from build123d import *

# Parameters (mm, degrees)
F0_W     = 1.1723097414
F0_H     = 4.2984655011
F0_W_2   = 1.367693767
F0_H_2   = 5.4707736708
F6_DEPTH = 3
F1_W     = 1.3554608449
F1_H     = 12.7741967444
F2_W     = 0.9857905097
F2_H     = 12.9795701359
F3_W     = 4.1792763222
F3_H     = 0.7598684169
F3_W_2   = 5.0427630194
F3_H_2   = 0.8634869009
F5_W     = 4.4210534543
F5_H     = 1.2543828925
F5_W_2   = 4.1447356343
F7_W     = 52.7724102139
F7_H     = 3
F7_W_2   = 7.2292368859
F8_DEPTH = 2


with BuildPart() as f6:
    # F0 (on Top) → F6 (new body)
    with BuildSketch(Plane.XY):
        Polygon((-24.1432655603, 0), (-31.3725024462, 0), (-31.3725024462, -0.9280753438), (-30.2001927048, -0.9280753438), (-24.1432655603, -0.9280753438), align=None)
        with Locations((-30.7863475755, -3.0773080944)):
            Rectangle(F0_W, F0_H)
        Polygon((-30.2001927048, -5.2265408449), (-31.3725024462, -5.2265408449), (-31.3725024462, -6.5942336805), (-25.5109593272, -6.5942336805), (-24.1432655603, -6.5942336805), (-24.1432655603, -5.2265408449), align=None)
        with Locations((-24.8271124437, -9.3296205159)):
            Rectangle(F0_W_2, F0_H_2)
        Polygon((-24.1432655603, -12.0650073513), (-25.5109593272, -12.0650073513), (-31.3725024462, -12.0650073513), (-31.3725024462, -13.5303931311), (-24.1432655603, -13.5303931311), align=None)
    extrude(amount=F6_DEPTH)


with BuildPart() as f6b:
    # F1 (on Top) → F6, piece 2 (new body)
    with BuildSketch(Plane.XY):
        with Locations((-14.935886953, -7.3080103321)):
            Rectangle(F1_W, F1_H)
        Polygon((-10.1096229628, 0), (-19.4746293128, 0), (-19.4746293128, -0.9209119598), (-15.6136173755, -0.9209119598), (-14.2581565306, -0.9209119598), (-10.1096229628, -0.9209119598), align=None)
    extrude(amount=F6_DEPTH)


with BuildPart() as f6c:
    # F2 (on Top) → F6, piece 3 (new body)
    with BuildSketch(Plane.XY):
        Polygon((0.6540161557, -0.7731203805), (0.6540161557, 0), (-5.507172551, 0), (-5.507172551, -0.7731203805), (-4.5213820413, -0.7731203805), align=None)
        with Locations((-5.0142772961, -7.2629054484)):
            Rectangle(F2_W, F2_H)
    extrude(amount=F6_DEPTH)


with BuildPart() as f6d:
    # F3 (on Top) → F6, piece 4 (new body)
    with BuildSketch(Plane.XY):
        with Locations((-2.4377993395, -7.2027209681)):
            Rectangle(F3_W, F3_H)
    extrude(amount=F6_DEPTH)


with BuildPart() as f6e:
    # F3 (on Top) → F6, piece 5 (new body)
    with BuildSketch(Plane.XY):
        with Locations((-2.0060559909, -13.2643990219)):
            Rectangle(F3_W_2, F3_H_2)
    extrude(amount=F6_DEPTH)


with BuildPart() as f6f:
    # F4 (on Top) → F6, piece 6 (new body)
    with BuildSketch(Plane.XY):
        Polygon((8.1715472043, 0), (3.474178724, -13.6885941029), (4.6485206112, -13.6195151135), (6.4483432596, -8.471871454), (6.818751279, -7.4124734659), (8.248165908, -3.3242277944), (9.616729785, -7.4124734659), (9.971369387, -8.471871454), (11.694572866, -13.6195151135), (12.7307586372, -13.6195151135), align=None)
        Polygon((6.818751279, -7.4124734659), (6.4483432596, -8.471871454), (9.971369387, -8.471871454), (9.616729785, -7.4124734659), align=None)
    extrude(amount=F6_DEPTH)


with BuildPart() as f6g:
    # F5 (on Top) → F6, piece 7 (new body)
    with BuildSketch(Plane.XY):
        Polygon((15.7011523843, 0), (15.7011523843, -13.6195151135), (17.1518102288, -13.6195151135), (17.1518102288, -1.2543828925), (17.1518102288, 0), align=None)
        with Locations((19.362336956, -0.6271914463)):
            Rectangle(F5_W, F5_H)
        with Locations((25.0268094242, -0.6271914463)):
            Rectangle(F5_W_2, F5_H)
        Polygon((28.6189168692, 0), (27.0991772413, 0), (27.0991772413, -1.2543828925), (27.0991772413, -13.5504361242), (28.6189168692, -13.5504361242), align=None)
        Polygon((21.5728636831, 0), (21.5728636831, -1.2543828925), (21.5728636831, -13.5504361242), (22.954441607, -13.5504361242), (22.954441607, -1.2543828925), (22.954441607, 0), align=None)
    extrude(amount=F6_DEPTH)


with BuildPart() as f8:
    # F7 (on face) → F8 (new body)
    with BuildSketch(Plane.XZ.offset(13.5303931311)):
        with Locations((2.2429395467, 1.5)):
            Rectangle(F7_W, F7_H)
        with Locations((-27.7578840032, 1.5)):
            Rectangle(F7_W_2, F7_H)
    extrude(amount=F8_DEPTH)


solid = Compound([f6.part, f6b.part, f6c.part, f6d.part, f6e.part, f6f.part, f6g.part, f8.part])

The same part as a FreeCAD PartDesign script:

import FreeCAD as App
import Part
import Sketcher
from FreeCAD import Vector
Q = App.Units.Quantity

doc = App.newDocument("Part")
body = doc.addObject("PartDesign::Body", "Body")

sketch1 = doc.addObject("Sketcher::SketchObject", "Sketch")
body.addObject(sketch1)
sketch1.AttachmentSupport = (doc.XY_Plane, [""])
sketch1.MapMode = "FlatFace"
sketch1.addGeometry(Part.LineSegment(Vector(-24.1, 0, 0), Vector(-31.4, 0, 0)), False)
sketch1.addGeometry(Part.LineSegment(Vector(-31.4, 0, 0), Vector(-31.4, -6.6, 0)), False)
sketch1.addGeometry(Part.LineSegment(Vector(-31.4, -6.6, 0), Vector(-25.5, -6.6, 0)), False)
sketch1.addGeometry(Part.LineSegment(Vector(-25.5, -6.6, 0), Vector(-25.5, -12.1, 0)), False)
sketch1.addGeometry(Part.LineSegment(Vector(-25.5, -12.1, 0), Vector(-31.4, -12.1, 0)), False)
sketch1.addGeometry(Part.LineSegment(Vector(-31.4, -12.1, 0), Vector(-31.4, -13.5, 0)), False)
sketch1.addGeometry(Part.LineSegment(Vector(-31.4, -13.5, 0), Vector(-24.1, -13.5, 0)), False)
sketch1.addGeometry(Part.LineSegment(Vector(-24.1, -13.5, 0), Vector(-24.1, -12.1, 0)), False)
sketch1.addGeometry(Part.LineSegment(Vector(-24.1, -12.1, 0), Vector(-24.1, -6.6, 0)), False)
sketch1.addGeometry(Part.LineSegment(Vector(-24.1, -6.6, 0), Vector(-24.1, -5.2, 0)), False)
sketch1.addGeometry(Part.LineSegment(Vector(-24.1, -5.2, 0), Vector(-30.2, -5.2, 0)), False)
sketch1.addGeometry(Part.LineSegment(Vector(-30.2, -5.2, 0), Vector(-30.2, -0.9, 0)), False)
sketch1.addGeometry(Part.LineSegment(Vector(-30.2, -0.9, 0), Vector(-24.1, -0.9, 0)), False)
sketch1.addGeometry(Part.LineSegment(Vector(-24.1, -0.9, 0), Vector(-24.1, 0, 0)), False)
sketch1.addConstraint(Sketcher.Constraint("Coincident", 0, 2, 1, 1))
sketch1.addConstraint(Sketcher.Constraint("Coincident", 1, 2, 2, 1))
sketch1.addConstraint(Sketcher.Constraint("Coincident", 2, 2, 3, 1))
sketch1.addConstraint(Sketcher.Constraint("Coincident", 3, 2, 4, 1))
sketch1.addConstraint(Sketcher.Constraint("Coincident", 4, 2, 5, 1))
sketch1.addConstraint(Sketcher.Constraint("Coincident", 5, 2, 6, 1))
sketch1.addConstraint(Sketcher.Constraint("Coincident", 6, 2, 7, 1))
sketch1.addConstraint(Sketcher.Constraint("Coincident", 7, 2, 8, 1))
sketch1.addConstraint(Sketcher.Constraint("Coincident", 8, 2, 9, 1))
sketch1.addConstraint(Sketcher.Constraint("Coincident", 9, 2, 10, 1))
sketch1.addConstraint(Sketcher.Constraint("Coincident", 10, 2, 11, 1))
sketch1.addConstraint(Sketcher.Constraint("Coincident", 11, 2, 12, 1))
sketch1.addConstraint(Sketcher.Constraint("Coincident", 12, 2, 13, 1))
sketch1.addConstraint(Sketcher.Constraint("Coincident", 13, 2, 0, 1))
sketch1.addConstraint(Sketcher.Constraint("Horizontal", 0))
sketch1.addConstraint(Sketcher.Constraint("Vertical", 1))
sketch1.addConstraint(Sketcher.Constraint("Horizontal", 2))
sketch1.addConstraint(Sketcher.Constraint("Vertical", 3))
sketch1.addConstraint(Sketcher.Constraint("Horizontal", 4))
sketch1.addConstraint(Sketcher.Constraint("Vertical", 5))
sketch1.addConstraint(Sketcher.Constraint("Horizontal", 6))
sketch1.addConstraint(Sketcher.Constraint("Vertical", 7))
sketch1.addConstraint(Sketcher.Constraint("Vertical", 8))
sketch1.addConstraint(Sketcher.Constraint("Vertical", 9))
sketch1.addConstraint(Sketcher.Constraint("Horizontal", 10))
sketch1.addConstraint(Sketcher.Constraint("Vertical", 11))
sketch1.addConstraint(Sketcher.Constraint("Horizontal", 12))
sketch1.addConstraint(Sketcher.Constraint("Vertical", 13))
sketch1.addConstraint(Sketcher.Constraint("PointOnObject", 0, 2, -1))
sketch1.addConstraint(Sketcher.Constraint("Horizontal", 4, 2, 7, 2))
sketch1.addConstraint(Sketcher.Constraint("Horizontal", 2, 2, 8, 2))
sketch1.addConstraint(Sketcher.Constraint("Vertical", 1, 2, 4, 2))
sketch1.addConstraint(Sketcher.Constraint("Vertical", 9, 2, 12, 2))
sketch1.addConstraint(Sketcher.Constraint("DistanceX", 0, 2, 0, 1, Q("7.229237 mm")))
sketch1.addConstraint(Sketcher.Constraint("DistanceX", 2, 1, 2, 2, Q("5.861543 mm")))
sketch1.addConstraint(Sketcher.Constraint("DistanceX", 10, 2, 10, 1, Q("6.056927 mm")))
sketch1.addConstraint(Sketcher.Constraint("DistanceY", 1, 2, 1, 1, Q("6.594234 mm")))
sketch1.addConstraint(Sketcher.Constraint("DistanceY", 3, 2, 3, 1, Q("5.470774 mm")))
sketch1.addConstraint(Sketcher.Constraint("DistanceY", 5, 2, 5, 1, Q("1.465386 mm")))
sketch1.addConstraint(Sketcher.Constraint("DistanceY", 9, 1, 9, 2, Q("1.367693 mm")))
sketch1.addConstraint(Sketcher.Constraint("DistanceY", 11, 1, 11, 2, Q("4.298466 mm")))
sketch1.addConstraint(Sketcher.Constraint("DistanceX", 2, 2, -1, 1, Q("25.510959 mm")))
pad1 = doc.addObject("PartDesign::Pad", "Pad")
body.addObject(pad1)
pad1.Profile = sketch1
pad1.Length = 3
body2 = doc.addObject("PartDesign::Body", "Body001")

sketch2 = doc.addObject("Sketcher::SketchObject", "Sketch001")
body2.addObject(sketch2)
sketch2.AttachmentSupport = (doc.getObject("XY_Plane001"), [""])
sketch2.MapMode = "FlatFace"
sketch2.addGeometry(Part.LineSegment(Vector(-15.6, -0.9, 0), Vector(-15.6, -13.7, 0)), False)
sketch2.addGeometry(Part.LineSegment(Vector(-15.6, -13.7, 0), Vector(-14.3, -13.7, 0)), False)
sketch2.addGeometry(Part.LineSegment(Vector(-14.3, -13.7, 0), Vector(-14.3, -0.9, 0)), False)
sketch2.addGeometry(Part.LineSegment(Vector(-14.3, -0.9, 0), Vector(-10.1, -0.9, 0)), False)
sketch2.addGeometry(Part.LineSegment(Vector(-10.1, -0.9, 0), Vector(-10.1, 0, 0)), False)
sketch2.addGeometry(Part.LineSegment(Vector(-10.1, 0, 0), Vector(-19.5, 0, 0)), False)
sketch2.addGeometry(Part.LineSegment(Vector(-19.5, 0, 0), Vector(-19.5, -0.9, 0)), False)
sketch2.addGeometry(Part.LineSegment(Vector(-19.5, -0.9, 0), Vector(-15.6, -0.9, 0)), False)
sketch2.addConstraint(Sketcher.Constraint("Coincident", 0, 2, 1, 1))
sketch2.addConstraint(Sketcher.Constraint("Coincident", 1, 2, 2, 1))
sketch2.addConstraint(Sketcher.Constraint("Coincident", 2, 2, 3, 1))
sketch2.addConstraint(Sketcher.Constraint("Coincident", 3, 2, 4, 1))
sketch2.addConstraint(Sketcher.Constraint("Coincident", 4, 2, 5, 1))
sketch2.addConstraint(Sketcher.Constraint("Coincident", 5, 2, 6, 1))
sketch2.addConstraint(Sketcher.Constraint("Coincident", 6, 2, 7, 1))
sketch2.addConstraint(Sketcher.Constraint("Coincident", 7, 2, 0, 1))
sketch2.addConstraint(Sketcher.Constraint("Vertical", 0))
sketch2.addConstraint(Sketcher.Constraint("Horizontal", 1))
sketch2.addConstraint(Sketcher.Constraint("Vertical", 2))
sketch2.addConstraint(Sketcher.Constraint("Horizontal", 3))
sketch2.addConstraint(Sketcher.Constraint("Vertical", 4))
sketch2.addConstraint(Sketcher.Constraint("Horizontal", 5))
sketch2.addConstraint(Sketcher.Constraint("Vertical", 6))
sketch2.addConstraint(Sketcher.Constraint("Horizontal", 7))
sketch2.addConstraint(Sketcher.Constraint("PointOnObject", 4, 2, -1))
sketch2.addConstraint(Sketcher.Constraint("Horizontal", 3, 2, 6, 2))
sketch2.addConstraint(Sketcher.Constraint("DistanceX", 1, 1, 1, 2, Q("1.355461 mm")))
sketch2.addConstraint(Sketcher.Constraint("DistanceX", 7, 1, 7, 2, Q("3.861012 mm")))
sketch2.addConstraint(Sketcher.Constraint("DistanceY", 4, 1, 4, 2, Q("0.920912 mm")))
sketch2.addConstraint(Sketcher.Constraint("DistanceX", 3, 1, 3, 2, Q("4.148534 mm")))
sketch2.addConstraint(Sketcher.Constraint("DistanceY", 0, 2, 0, 1, Q("12.774197 mm")))
sketch2.addConstraint(Sketcher.Constraint("DistanceX", 5, 2, -1, 1, Q("19.474629 mm")))
pad2 = doc.addObject("PartDesign::Pad", "Pad001")
body2.addObject(pad2)
pad2.Profile = sketch2
pad2.Length = 3
body3 = doc.addObject("PartDesign::Body", "Body002")

sketch3 = doc.addObject("Sketcher::SketchObject", "Sketch002")
body3.addObject(sketch3)
sketch3.AttachmentSupport = (doc.getObject("XY_Plane002"), [""])
sketch3.MapMode = "FlatFace"
sketch3.addGeometry(Part.LineSegment(Vector(0.7, -0.8, 0), Vector(0.7, 0, 0)), False)
sketch3.addGeometry(Part.LineSegment(Vector(0.7, 0, 0), Vector(-5.5, 0, 0)), False)
sketch3.addGeometry(Part.LineSegment(Vector(-5.5, 0, 0), Vector(-5.5, -0.8, 0)), False)
sketch3.addGeometry(Part.LineSegment(Vector(-5.5, -0.8, 0), Vector(-5.5, -13.8, 0)), False)
sketch3.addGeometry(Part.LineSegment(Vector(-5.5, -13.8, 0), Vector(-4.5, -13.8, 0)), False)
sketch3.addGeometry(Part.LineSegment(Vector(-4.5, -13.8, 0), Vector(-4.5, -0.8, 0)), False)
sketch3.addGeometry(Part.LineSegment(Vector(-4.5, -0.8, 0), Vector(0.7, -0.8, 0)), False)
sketch3.addConstraint(Sketcher.Constraint("Coincident", 0, 2, 1, 1))
sketch3.addConstraint(Sketcher.Constraint("Coincident", 1, 2, 2, 1))
sketch3.addConstraint(Sketcher.Constraint("Coincident", 2, 2, 3, 1))
sketch3.addConstraint(Sketcher.Constraint("Coincident", 3, 2, 4, 1))
sketch3.addConstraint(Sketcher.Constraint("Coincident", 4, 2, 5, 1))
sketch3.addConstraint(Sketcher.Constraint("Coincident", 5, 2, 6, 1))
sketch3.addConstraint(Sketcher.Constraint("Coincident", 6, 2, 0, 1))
sketch3.addConstraint(Sketcher.Constraint("Vertical", 0))
sketch3.addConstraint(Sketcher.Constraint("Horizontal", 1))
sketch3.addConstraint(Sketcher.Constraint("Vertical", 2))
sketch3.addConstraint(Sketcher.Constraint("Vertical", 3))
sketch3.addConstraint(Sketcher.Constraint("Horizontal", 4))
sketch3.addConstraint(Sketcher.Constraint("Vertical", 5))
sketch3.addConstraint(Sketcher.Constraint("Horizontal", 6))
sketch3.addConstraint(Sketcher.Constraint("PointOnObject", 0, 2, -1))
sketch3.addConstraint(Sketcher.Constraint("Horizontal", 2, 2, 5, 2))
sketch3.addConstraint(Sketcher.Constraint("DistanceX", 6, 1, 6, 2, Q("5.175398 mm")))
sketch3.addConstraint(Sketcher.Constraint("DistanceX", 1, 2, 1, 1, Q("6.161189 mm")))
sketch3.addConstraint(Sketcher.Constraint("DistanceY", 0, 1, 0, 2, Q("0.77312 mm")))
sketch3.addConstraint(Sketcher.Constraint("DistanceY", 3, 2, 3, 1, Q("12.97957 mm")))
sketch3.addConstraint(Sketcher.Constraint("DistanceX", -1, 1, 0, 2, Q("0.654016 mm")))
pad3 = doc.addObject("PartDesign::Pad", "Pad002")
body3.addObject(pad3)
pad3.Profile = sketch3
pad3.Length = 3
body4 = doc.addObject("PartDesign::Body", "Body003")

sketch4 = doc.addObject("Sketcher::SketchObject", "Sketch003")
body4.addObject(sketch4)
sketch4.AttachmentSupport = (doc.getObject("XY_Plane003"), [""])
sketch4.MapMode = "FlatFace"
sketch4.addGeometry(Part.LineSegment(Vector(-4.5, -6.8, 0), Vector(-4.5, -7.6, 0)), False)
sketch4.addGeometry(Part.LineSegment(Vector(-4.5, -7.6, 0), Vector(-0.3, -7.6, 0)), False)
sketch4.addGeometry(Part.LineSegment(Vector(-0.3, -7.6, 0), Vector(-0.3, -6.8, 0)), False)
sketch4.addGeometry(Part.LineSegment(Vector(-0.3, -6.8, 0), Vector(-4.5, -6.8, 0)), False)
sketch4.addConstraint(Sketcher.Constraint("Coincident", 0, 2, 1, 1))
sketch4.addConstraint(Sketcher.Constraint("Coincident", 1, 2, 2, 1))
sketch4.addConstraint(Sketcher.Constraint("Coincident", 2, 2, 3, 1))
sketch4.addConstraint(Sketcher.Constraint("Coincident", 3, 2, 0, 1))
sketch4.addConstraint(Sketcher.Constraint("Vertical", 0))
sketch4.addConstraint(Sketcher.Constraint("Horizontal", 1))
sketch4.addConstraint(Sketcher.Constraint("Vertical", 2))
sketch4.addConstraint(Sketcher.Constraint("Horizontal", 3))
sketch4.addConstraint(Sketcher.Constraint("DistanceY", 0, 2, 0, 1, Q("0.759868 mm")))
sketch4.addConstraint(Sketcher.Constraint("DistanceX", 1, 1, 1, 2, Q("4.179276 mm")))
sketch4.addConstraint(Sketcher.Constraint("DistanceX", 1, 2, -1, 1, Q("0.348161 mm")))
sketch4.addConstraint(Sketcher.Constraint("DistanceY", 0, 2, -1, 1, Q("7.582655 mm")))
pad4 = doc.addObject("PartDesign::Pad", "Pad003")
body4.addObject(pad4)
pad4.Profile = sketch4
pad4.Length = 3
body5 = doc.addObject("PartDesign::Body", "Body004")

sketch5 = doc.addObject("Sketcher::SketchObject", "Sketch004")
body5.addObject(sketch5)
sketch5.AttachmentSupport = (doc.getObject("XY_Plane004"), [""])
sketch5.MapMode = "FlatFace"
sketch5.addGeometry(Part.LineSegment(Vector(-4.5, -12.8, 0), Vector(-4.5, -13.7, 0)), False)
sketch5.addGeometry(Part.LineSegment(Vector(-4.5, -13.7, 0), Vector(0.5, -13.7, 0)), False)
sketch5.addGeometry(Part.LineSegment(Vector(0.5, -13.7, 0), Vector(0.5, -12.8, 0)), False)
sketch5.addGeometry(Part.LineSegment(Vector(0.5, -12.8, 0), Vector(-4.5, -12.8, 0)), False)
sketch5.addConstraint(Sketcher.Constraint("Coincident", 0, 2, 1, 1))
sketch5.addConstraint(Sketcher.Constraint("Coincident", 1, 2, 2, 1))
sketch5.addConstraint(Sketcher.Constraint("Coincident", 2, 2, 3, 1))
sketch5.addConstraint(Sketcher.Constraint("Coincident", 3, 2, 0, 1))
sketch5.addConstraint(Sketcher.Constraint("Vertical", 0))
sketch5.addConstraint(Sketcher.Constraint("Horizontal", 1))
sketch5.addConstraint(Sketcher.Constraint("Vertical", 2))
sketch5.addConstraint(Sketcher.Constraint("Horizontal", 3))
sketch5.addConstraint(Sketcher.Constraint("DistanceX", 1, 1, 1, 2, Q("5.042763 mm")))
sketch5.addConstraint(Sketcher.Constraint("DistanceY", 0, 2, 0, 1, Q("0.863487 mm")))
sketch5.addConstraint(Sketcher.Constraint("DistanceX", 0, 2, -1, 1, Q("4.527438 mm")))
sketch5.addConstraint(Sketcher.Constraint("DistanceY", 0, 2, -1, 1, Q("13.696142 mm")))
pad5 = doc.addObject("PartDesign::Pad", "Pad004")
body5.addObject(pad5)
pad5.Profile = sketch5
pad5.Length = 3
body6 = doc.addObject("PartDesign::Body", "Body005")

sketch6 = doc.addObject("Sketcher::SketchObject", "Sketch005")
body6.addObject(sketch6)
sketch6.AttachmentSupport = (doc.getObject("XY_Plane005"), [""])
sketch6.MapMode = "FlatFace"
sketch6.addGeometry(Part.LineSegment(Vector(8.2, 0, 0), Vector(3.5, -13.7, 0)), False)
sketch6.addGeometry(Part.LineSegment(Vector(3.5, -13.7, 0), Vector(4.6, -13.6, 0)), False)
sketch6.addGeometry(Part.LineSegment(Vector(4.6, -13.6, 0), Vector(6.4, -8.5, 0)), False)
sketch6.addGeometry(Part.LineSegment(Vector(6.4, -8.5, 0), Vector(10, -8.5, 0)), False)
sketch6.addGeometry(Part.LineSegment(Vector(10, -8.5, 0), Vector(11.7, -13.6, 0)), False)
sketch6.addGeometry(Part.LineSegment(Vector(11.7, -13.6, 0), Vector(12.7, -13.6, 0)), False)
sketch6.addGeometry(Part.LineSegment(Vector(12.7, -13.6, 0), Vector(8.2, 0, 0)), False)
sketch6.addGeometry(Part.LineSegment(Vector(6.8, -7.4, 0), Vector(8.2, -3.3, 0)), False)
sketch6.addGeometry(Part.LineSegment(Vector(8.2, -3.3, 0), Vector(9.6, -7.4, 0)), False)
sketch6.addGeometry(Part.LineSegment(Vector(9.6, -7.4, 0), Vector(6.8, -7.4, 0)), False)
sketch6.addConstraint(Sketcher.Constraint("Coincident", 0, 2, 1, 1))
sketch6.addConstraint(Sketcher.Constraint("Coincident", 1, 2, 2, 1))
sketch6.addConstraint(Sketcher.Constraint("Coincident", 2, 2, 3, 1))
sketch6.addConstraint(Sketcher.Constraint("Coincident", 3, 2, 4, 1))
sketch6.addConstraint(Sketcher.Constraint("Coincident", 4, 2, 5, 1))
sketch6.addConstraint(Sketcher.Constraint("Coincident", 5, 2, 6, 1))
sketch6.addConstraint(Sketcher.Constraint("Coincident", 6, 2, 0, 1))
sketch6.addConstraint(Sketcher.Constraint("Coincident", 7, 2, 8, 1))
sketch6.addConstraint(Sketcher.Constraint("Coincident", 8, 2, 9, 1))
sketch6.addConstraint(Sketcher.Constraint("Coincident", 9, 2, 7, 1))
sketch6.addConstraint(Sketcher.Constraint("Horizontal", 3))
sketch6.addConstraint(Sketcher.Constraint("Horizontal", 5))
sketch6.addConstraint(Sketcher.Constraint("Horizontal", 9))
sketch6.addConstraint(Sketcher.Constraint("PointOnObject", 6, 2, -1))
sketch6.addConstraint(Sketcher.Constraint("Parallel", 4, 6))
sketch6.addConstraint(Sketcher.Constraint("Parallel", 2, 7))
sketch6.addConstraint(Sketcher.Constraint("Parallel", 6, 8))
sketch6.addConstraint(Sketcher.Constraint("Horizontal", 1, 2, 4, 2))
sketch6.addConstraint(Sketcher.Constraint("DistanceX", 9, 2, 9, 1, Q("2.797979 mm")))
sketch6.addConstraint(Sketcher.Constraint("Distance", 0, Q("14.472141 mm")))
sketch6.addConstraint(Sketcher.Constraint("Distance", 1, Q("1.176372 mm")))
sketch6.addConstraint(Sketcher.Constraint("Distance", 2, Q("5.453219 mm")))
sketch6.addConstraint(Sketcher.Constraint("Distance", 8, Q("4.311232 mm")))
sketch6.addConstraint(Sketcher.Constraint("DistanceX", 3, 1, 3, 2, Q("3.523026 mm")))
sketch6.addConstraint(Sketcher.Constraint("DistanceX", 5, 1, 5, 2, Q("1.036186 mm")))
sketch6.addConstraint(Sketcher.Constraint("DistanceX", -1, 1, 0, 2, Q("3.474179 mm")))
sketch6.addConstraint(Sketcher.Constraint("DistanceX", -1, 1, 1, 2, Q("4.648521 mm")))
sketch6.addConstraint(Sketcher.Constraint("DistanceY", 2, 2, -1, 1, Q("8.471871 mm")))
sketch6.addConstraint(Sketcher.Constraint("DistanceX", -1, 1, 8, 2, Q("9.61673 mm")))
sketch6.addConstraint(Sketcher.Constraint("DistanceY", 4, 2, 8, 2, Q("6.207042 mm")))
pad6 = doc.addObject("PartDesign::Pad", "Pad005")
body6.addObject(pad6)
pad6.Profile = sketch6
pad6.Length = 3
body7 = doc.addObject("PartDesign::Body", "Body006")

sketch7 = doc.addObject("Sketcher::SketchObject", "Sketch006")
body7.addObject(sketch7)
sketch7.AttachmentSupport = (doc.getObject("XY_Plane006"), [""])
sketch7.MapMode = "FlatFace"
sketch7.addGeometry(Part.LineSegment(Vector(15.7, 0, 0), Vector(15.7, -13.6, 0)), False)
sketch7.addGeometry(Part.LineSegment(Vector(15.7, -13.6, 0), Vector(17.2, -13.6, 0)), False)
sketch7.addGeometry(Part.LineSegment(Vector(17.2, -13.6, 0), Vector(17.2, -1.3, 0)), False)
sketch7.addGeometry(Part.LineSegment(Vector(17.2, -1.3, 0), Vector(21.6, -1.3, 0)), False)
sketch7.addGeometry(Part.LineSegment(Vector(21.6, -1.3, 0), Vector(21.6, -13.6, 0)), False)
sketch7.addGeometry(Part.LineSegment(Vector(21.6, -13.6, 0), Vector(23, -13.6, 0)), False)
sketch7.addGeometry(Part.LineSegment(Vector(23, -13.6, 0), Vector(23, -1.3, 0)), False)
sketch7.addGeometry(Part.LineSegment(Vector(23, -1.3, 0), Vector(27.1, -1.3, 0)), False)
sketch7.addGeometry(Part.LineSegment(Vector(27.1, -1.3, 0), Vector(27.1, -13.6, 0)), False)
sketch7.addGeometry(Part.LineSegment(Vector(27.1, -13.6, 0), Vector(28.6, -13.6, 0)), False)
sketch7.addGeometry(Part.LineSegment(Vector(28.6, -13.6, 0), Vector(28.6, 0, 0)), False)
sketch7.addGeometry(Part.LineSegment(Vector(28.6, 0, 0), Vector(27.1, 0, 0)), False)
sketch7.addGeometry(Part.LineSegment(Vector(27.1, 0, 0), Vector(23, 0, 0)), False)
sketch7.addGeometry(Part.LineSegment(Vector(23, 0, 0), Vector(21.6, 0, 0)), False)
sketch7.addGeometry(Part.LineSegment(Vector(21.6, 0, 0), Vector(17.2, 0, 0)), False)
sketch7.addGeometry(Part.LineSegment(Vector(17.2, 0, 0), Vector(15.7, 0, 0)), False)
sketch7.addConstraint(Sketcher.Constraint("Coincident", 0, 2, 1, 1))
sketch7.addConstraint(Sketcher.Constraint("Coincident", 1, 2, 2, 1))
sketch7.addConstraint(Sketcher.Constraint("Coincident", 2, 2, 3, 1))
sketch7.addConstraint(Sketcher.Constraint("Coincident", 3, 2, 4, 1))
sketch7.addConstraint(Sketcher.Constraint("Coincident", 4, 2, 5, 1))
sketch7.addConstraint(Sketcher.Constraint("Coincident", 5, 2, 6, 1))
sketch7.addConstraint(Sketcher.Constraint("Coincident", 6, 2, 7, 1))
sketch7.addConstraint(Sketcher.Constraint("Coincident", 7, 2, 8, 1))
sketch7.addConstraint(Sketcher.Constraint("Coincident", 8, 2, 9, 1))
sketch7.addConstraint(Sketcher.Constraint("Coincident", 9, 2, 10, 1))
sketch7.addConstraint(Sketcher.Constraint("Coincident", 10, 2, 11, 1))
sketch7.addConstraint(Sketcher.Constraint("Coincident", 11, 2, 12, 1))
sketch7.addConstraint(Sketcher.Constraint("Coincident", 12, 2, 13, 1))
sketch7.addConstraint(Sketcher.Constraint("Coincident", 13, 2, 14, 1))
sketch7.addConstraint(Sketcher.Constraint("Coincident", 14, 2, 15, 1))
sketch7.addConstraint(Sketcher.Constraint("Coincident", 15, 2, 0, 1))
sketch7.addConstraint(Sketcher.Constraint("Vertical", 0))
sketch7.addConstraint(Sketcher.Constraint("Horizontal", 1))
sketch7.addConstraint(Sketcher.Constraint("Vertical", 2))
sketch7.addConstraint(Sketcher.Constraint("Horizontal", 3))
sketch7.addConstraint(Sketcher.Constraint("Vertical", 4))
sketch7.addConstraint(Sketcher.Constraint("Horizontal", 5))
sketch7.addConstraint(Sketcher.Constraint("Vertical", 6))
sketch7.addConstraint(Sketcher.Constraint("Horizontal", 7))
sketch7.addConstraint(Sketcher.Constraint("Vertical", 8))
sketch7.addConstraint(Sketcher.Constraint("Horizontal", 9))
sketch7.addConstraint(Sketcher.Constraint("Vertical", 10))
sketch7.addConstraint(Sketcher.Constraint("Horizontal", 11))
sketch7.addConstraint(Sketcher.Constraint("Horizontal", 12))
sketch7.addConstraint(Sketcher.Constraint("Horizontal", 13))
sketch7.addConstraint(Sketcher.Constraint("Horizontal", 14))
sketch7.addConstraint(Sketcher.Constraint("Horizontal", 15))
sketch7.addConstraint(Sketcher.Constraint("PointOnObject", 10, 2, -1))
sketch7.addConstraint(Sketcher.Constraint("Horizontal", 3, 2, 6, 2))
sketch7.addConstraint(Sketcher.Constraint("Horizontal", 5, 2, 8, 2))
sketch7.addConstraint(Sketcher.Constraint("Vertical", 8, 2, 11, 2))
sketch7.addConstraint(Sketcher.Constraint("Vertical", 6, 2, 12, 2))
sketch7.addConstraint(Sketcher.Constraint("Vertical", 4, 2, 13, 2))
sketch7.addConstraint(Sketcher.Constraint("Vertical", 2, 2, 14, 2))
sketch7.addConstraint(Sketcher.Constraint("DistanceX", 9, 1, 9, 2, Q("1.51974 mm")))
sketch7.addConstraint(Sketcher.Constraint("DistanceX", 1, 1, 1, 2, Q("1.450658 mm")))
sketch7.addConstraint(Sketcher.Constraint("DistanceX", 3, 1, 3, 2, Q("4.421053 mm")))
sketch7.addConstraint(Sketcher.Constraint("DistanceX", 5, 1, 5, 2, Q("1.381578 mm")))
sketch7.addConstraint(Sketcher.Constraint("DistanceX", 7, 1, 7, 2, Q("4.144736 mm")))
sketch7.addConstraint(Sketcher.Constraint("DistanceY", 0, 2, 0, 1, Q("13.619515 mm")))
sketch7.addConstraint(Sketcher.Constraint("DistanceY", 2, 1, 2, 2, Q("12.365132 mm")))
sketch7.addConstraint(Sketcher.Constraint("DistanceY", 4, 2, 4, 1, Q("12.296053 mm")))
sketch7.addConstraint(Sketcher.Constraint("DistanceX", -1, 1, 1, 2, Q("17.15181 mm")))
pad7 = doc.addObject("PartDesign::Pad", "Pad006")
body7.addObject(pad7)
pad7.Profile = sketch7
pad7.Length = 3
body8 = doc.addObject("PartDesign::Body", "Body007")

sketch8 = doc.addObject("Sketcher::SketchObject", "Sketch007")
body8.addObject(sketch8)
sketch8.AttachmentSupport = (doc.getObject("XZ_Plane007"), [""])
sketch8.MapMode = "FlatFace"
sketch8.AttachmentOffset = App.Placement(Vector(0, 0, 13.530393), App.Rotation())
sketch8.addGeometry(Part.LineSegment(Vector(28.6, 0, 0), Vector(28.6, 3, 0)), False)
sketch8.addGeometry(Part.LineSegment(Vector(28.6, 3, 0), Vector(-31.4, 3, 0)), False)
sketch8.addGeometry(Part.LineSegment(Vector(-31.4, 3, 0), Vector(-31.4, 0, 0)), False)
sketch8.addGeometry(Part.LineSegment(Vector(-31.4, 0, 0), Vector(28.6, 0, 0)), False)
sketch8.addConstraint(Sketcher.Constraint("Coincident", 0, 2, 1, 1))
sketch8.addConstraint(Sketcher.Constraint("Coincident", 1, 2, 2, 1))
sketch8.addConstraint(Sketcher.Constraint("Coincident", 2, 2, 3, 1))
sketch8.addConstraint(Sketcher.Constraint("Coincident", 3, 2, 0, 1))
sketch8.addConstraint(Sketcher.Constraint("Vertical", 0))
sketch8.addConstraint(Sketcher.Constraint("Horizontal", 1))
sketch8.addConstraint(Sketcher.Constraint("Vertical", 2))
sketch8.addConstraint(Sketcher.Constraint("Horizontal", 3))
sketch8.addConstraint(Sketcher.Constraint("PointOnObject", 2, 2, -1))
sketch8.addConstraint(Sketcher.Constraint("DistanceY", 0, 1, 0, 2, Q("3 mm")))
sketch8.addConstraint(Sketcher.Constraint("DistanceX", 1, 2, 1, 1, Q("60.001647 mm")))
sketch8.addConstraint(Sketcher.Constraint("DistanceX", -1, 1, 0, 2, Q("28.629145 mm")))
pad8 = doc.addObject("PartDesign::Pad", "Pad007")
body8.addObject(pad8)
pad8.Profile = sketch8
pad8.Length = 2

doc.recompute()
